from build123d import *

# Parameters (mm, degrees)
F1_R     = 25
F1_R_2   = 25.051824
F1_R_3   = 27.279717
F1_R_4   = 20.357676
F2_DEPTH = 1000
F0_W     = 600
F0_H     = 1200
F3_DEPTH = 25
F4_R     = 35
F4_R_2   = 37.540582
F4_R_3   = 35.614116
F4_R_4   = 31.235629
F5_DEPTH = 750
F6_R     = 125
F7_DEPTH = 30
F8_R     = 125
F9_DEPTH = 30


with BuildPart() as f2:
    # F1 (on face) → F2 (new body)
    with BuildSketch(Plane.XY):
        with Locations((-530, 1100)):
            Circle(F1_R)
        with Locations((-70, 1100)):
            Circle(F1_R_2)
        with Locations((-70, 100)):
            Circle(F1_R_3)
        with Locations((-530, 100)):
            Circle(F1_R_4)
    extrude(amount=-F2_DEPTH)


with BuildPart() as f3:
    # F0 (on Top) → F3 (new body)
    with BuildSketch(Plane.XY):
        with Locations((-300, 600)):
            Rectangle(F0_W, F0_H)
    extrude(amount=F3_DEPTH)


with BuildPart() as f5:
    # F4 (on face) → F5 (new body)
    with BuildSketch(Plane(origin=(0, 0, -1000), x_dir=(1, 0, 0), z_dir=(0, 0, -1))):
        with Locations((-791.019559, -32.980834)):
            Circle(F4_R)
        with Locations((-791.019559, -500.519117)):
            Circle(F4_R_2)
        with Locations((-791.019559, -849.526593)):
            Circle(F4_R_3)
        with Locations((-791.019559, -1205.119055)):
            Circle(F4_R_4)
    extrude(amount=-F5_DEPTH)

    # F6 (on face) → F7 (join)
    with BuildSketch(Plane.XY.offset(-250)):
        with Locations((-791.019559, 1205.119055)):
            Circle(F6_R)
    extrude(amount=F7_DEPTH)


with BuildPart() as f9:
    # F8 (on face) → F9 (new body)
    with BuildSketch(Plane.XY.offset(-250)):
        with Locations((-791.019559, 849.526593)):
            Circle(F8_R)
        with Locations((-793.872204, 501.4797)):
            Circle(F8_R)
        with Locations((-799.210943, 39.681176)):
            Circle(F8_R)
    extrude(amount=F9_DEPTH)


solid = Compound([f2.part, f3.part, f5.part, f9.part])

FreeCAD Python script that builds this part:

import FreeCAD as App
import Part
import Sketcher

V = App.Vector
Q = App.Units.Quantity


def add_polygon(sketch, points):
    """Adds a closed chain of lines whose ends are joined by coincident constraints."""
    first, n = sketch.GeometryCount, len(points)
    for a, b in zip(points, points[1:] + points[:1]):
        sketch.addGeometry(Part.LineSegment(App.Vector(*a, 0), App.Vector(*b, 0)), False)
    for i in range(n):
        sketch.addConstraint(Sketcher.Constraint("Coincident", first + i, 2, first + (i + 1) % n, 1))

doc = App.newDocument("Part")
params = doc.addObject("Spreadsheet::Sheet", "Params")
for row, (alias, value) in enumerate([
    ("sketch1_diameter", "50 mm"),
    ("pad1_length", "1000 mm"),
    ("sketch2_width", "600 mm"),
    ("sketch2_height", "1200 mm"),
    ("pad2_length", "25 mm"),
    ("sketch3_diameter", "70 mm"),
    ("pad3_length", "750 mm"),
    ("sketch4_diameter", "250 mm"),
    ("pad4_length", "30 mm"),
    ("sketch5_diameter", "250 mm"),
    ("pad5_length", "30 mm"),
], start=1):
    params.set(f"A{row}", alias)
    params.set(f"B{row}", "=" + value)
    params.setAlias(f"B{row}", alias)

body = doc.addObject("PartDesign::Body", "Body")
body.AllowCompound = True

sketch1 = doc.addObject("Sketcher::SketchObject", "Sketch")
body.addObject(sketch1)
sketch1.AttachmentSupport = (doc.XY_Plane, [""])
sketch1.MapMode = "FlatFace"
sketch1.addGeometry(Part.Circle(V(-530, 1100, 0), V(0, 0, 1), 25), False)
sketch1.addGeometry(Part.Circle(V(-70, 1100, 0), V(0, 0, 1), 25.051824), False)
sketch1.addGeometry(Part.Circle(V(-70, 100, 0), V(0, 0, 1), 27.279717), False)
sketch1.addGeometry(Part.Circle(V(-530, 100, 0), V(0, 0, 1), 20.357676), False)
sketch1.addConstraint(Sketcher.Constraint("Horizontal", 0, 3, 1, 3))
sketch1.addConstraint(Sketcher.Constraint("Horizontal", 2, 3, 3, 3))
sketch1.addConstraint(Sketcher.Constraint("Vertical", 1, 3, 2, 3))
sketch1.addConstraint(Sketcher.Constraint("Vertical", 0, 3, 3, 3))
sketch1.addConstraint(Sketcher.Constraint("Diameter", 0, Q("50 mm")))
sketch1.addConstraint(Sketcher.Constraint("DistanceX", 0, 3, -1, 1, Q("530 mm")))
sketch1.addConstraint(Sketcher.Constraint("DistanceY", -1, 1, 0, 3, Q("1100 mm")))
sketch1.addConstraint(Sketcher.Constraint("DistanceX", 1, 3, -1, 1, Q("70 mm")))
sketch1.addConstraint(Sketcher.Constraint("DistanceY", -1, 1, 2, 3, Q("100 mm")))
sketch1.addConstraint(Sketcher.Constraint("Diameter", 1, Q("50.103648 mm")))
sketch1.addConstraint(Sketcher.Constraint("Diameter", 2, Q("54.559434 mm")))
sketch1.addConstraint(Sketcher.Constraint("Diameter", 3, Q("40.715352 mm")))
sketch1.setExpression("Constraints[4]", "Params.sketch1_diameter")
pad1 = doc.addObject("PartDesign::Pad", "Pad")
body.addObject(pad1)
pad1.Profile = sketch1
pad1.setExpression("Length", "Params.pad1_length")
pad1.Reversed = True
body2 = doc.addObject("PartDesign::Body", "Body001")

sketch2 = doc.addObject("Sketcher::SketchObject", "Sketch001")
body2.addObject(sketch2)
sketch2.AttachmentSupport = (doc.getObject("XY_Plane001"), [""])
sketch2.MapMode = "FlatFace"
add_polygon(sketch2, [(-600, 1200), (-600, 0), (0, 0), (0, 1200)])
sketch2.addConstraint(Sketcher.Constraint("Vertical", 0))
sketch2.addConstraint(Sketcher.Constraint("Horizontal", 1))
sketch2.addConstraint(Sketcher.Constraint("Vertical", 2))
sketch2.addConstraint(Sketcher.Constraint("Horizontal", 3))
sketch2.addConstraint(Sketcher.Constraint("Coincident", 1, 2, -1, 1))
sketch2.addConstraint(Sketcher.Constraint("DistanceX", 1, 1, 1, 2, Q("600 mm")))
sketch2.addConstraint(Sketcher.Constraint("DistanceY", 0, 2, 0, 1, Q("1200 mm")))
sketch2.setExpression("Constraints[9]", "Params.sketch2_width")
sketch2.setExpression("Constraints[10]", "Params.sketch2_height")
pad2 = doc.addObject("PartDesign::Pad", "Pad001")
body2.addObject(pad2)
pad2.Profile = sketch2
pad2.setExpression("Length", "Params.pad2_length")
body3 = doc.addObject("PartDesign::Body", "Body002")
body3.AllowCompound = True

sketch3 = doc.addObject("Sketcher::SketchObject", "Sketch002")
body3.addObject(sketch3)
sketch3.AttachmentSupport = (doc.getObject("XY_Plane002"), [""])
sketch3.MapMode = "FlatFace"
sketch3.AttachmentOffset = App.Placement(V(0, 0, -1000), App.Rotation())
sketch3.addGeometry(Part.Circle(V(-791.019559, 32.980834, 0), V(0, 0, 1), 35), False)
sketch3.addGeometry(Part.Circle(V(-791.019559, 500.519117, 0), V(0, 0, 1), 37.540582), False)
sketch3.addGeometry(Part.Circle(V(-791.019559, 849.526593, 0), V(0, 0, 1), 35.614116), False)
sketch3.addGeometry(Part.Circle(V(-791.019559, 1205.119055, 0), V(0, 0, 1), 31.235629), False)
sketch3.addConstraint(Sketcher.Constraint("Vertical", 0, 3, 1, 3))
sketch3.addConstraint(Sketcher.Constraint("Vertical", 1, 3, 2, 3))
sketch3.addConstraint(Sketcher.Constraint("Vertical", 2, 3, 3, 3))
sketch3.addConstraint(Sketcher.Constraint("Diameter", 0, Q("70 mm")))
sketch3.addConstraint(Sketcher.Constraint("Diameter", 1, Q("75.081164 mm")))
sketch3.addConstraint(Sketcher.Constraint("Diameter", 2, Q("71.228232 mm")))
sketch3.addConstraint(Sketcher.Constraint("Diameter", 3, Q("62.471258 mm")))
sketch3.addConstraint(Sketcher.Constraint("DistanceX", 0, 3, -1, 1, Q("791.019559 mm")))
sketch3.addConstraint(Sketcher.Constraint("DistanceY", 0, 3, 2, 3, Q("816.545759 mm")))
sketch3.addConstraint(Sketcher.Constraint("DistanceY", 2, 3, 3, 3, Q("355.592462 mm")))
sketch3.addConstraint(Sketcher.Constraint("DistanceY", -1, 1, 0, 3, Q("32.980834 mm")))
sketch3.addConstraint(Sketcher.Constraint("DistanceY", -1, 1, 1, 3, Q("500.519117 mm")))
sketch3.setExpression("Constraints[3]", "Params.sketch3_diameter")
pad3 = doc.addObject("PartDesign::Pad", "Pad002")
body3.addObject(pad3)
pad3.Profile = sketch3
pad3.setExpression("Length", "Params.pad3_length")

sketch4 = doc.addObject("Sketcher::SketchObject", "Sketch003")
body3.addObject(sketch4)
sketch4.AttachmentSupport = (doc.getObject("XY_Plane002"), [""])
sketch4.MapMode = "FlatFace"
sketch4.AttachmentOffset = App.Placement(V(0, 0, -250), App.Rotation())
sketch4.addGeometry(Part.Circle(V(-791.019559, 1205.119055, 0), V(0, 0, 1), 125), False)
sketch4.addConstraint(Sketcher.Constraint("Diameter", 0, Q("250 mm")))
sketch4.addConstraint(Sketcher.Constraint("DistanceX", 0, 3, -1, 1, Q("791.019559 mm")))
sketch4.addConstraint(Sketcher.Constraint("DistanceY", -1, 1, 0, 3, Q("1205.119055 mm")))
sketch4.setExpression("Constraints[0]", "Params.sketch4_diameter")
pad4 = doc.addObject("PartDesign::Pad", "Pad003")
body3.addObject(pad4)
pad4.Profile = sketch4
pad4.setExpression("Length", "Params.pad4_length")
body4 = doc.addObject("PartDesign::Body", "Body003")
body4.AllowCompound = True

sketch5 = doc.addObject("Sketcher::SketchObject", "Sketch004")
body4.addObject(sketch5)
sketch5.AttachmentSupport = (doc.getObject("XY_Plane003"), [""])
sketch5.MapMode = "FlatFace"
sketch5.AttachmentOffset = App.Placement(V(0, 0, -250), App.Rotation())
sketch5.addGeometry(Part.Circle(V(-791.019559, 849.526593, 0), V(0, 0, 1), 125), False)
sketch5.addGeometry(Part.Circle(V(-793.872204, 501.4797, 0), V(0, 0, 1), 125), False)
sketch5.addGeometry(Part.Circle(V(-799.210943, 39.681176, 0), V(0, 0, 1), 125), False)
sketch5.addConstraint(Sketcher.Constraint("Equal", 0, 1))
sketch5.addConstraint(Sketcher.Constraint("Equal", 1, 2))
sketch5.addConstraint(Sketcher.Constraint("Diameter", 0, Q("250 mm")))
sketch5.addConstraint(Sketcher.Constraint("DistanceY", -1, 1, 1, 3, Q("501.4797 mm")))
sketch5.addConstraint(Sketcher.Constraint("DistanceX", 0, 3, -1, 1, Q("791.019559 mm")))
sketch5.addConstraint(Sketcher.Constraint("DistanceX", 2, 3, 1, 3, Q("5.338739 mm")))
sketch5.addConstraint(Sketcher.Constraint("DistanceY", -1, 1, 0, 3, Q("849.526593 mm")))
sketch5.addConstraint(Sketcher.Constraint("DistanceX", 1, 3, -1, 1, Q("793.872204 mm")))
sketch5.addConstraint(Sketcher.Constraint("DistanceY", -1, 1, 2, 3, Q("39.681176 mm")))
sketch5.setExpression("Constraints[2]", "Params.sketch5_diameter")
pad5 = doc.addObject("PartDesign::Pad", "Pad004")
body4.addObject(pad5)
pad5.Profile = sketch5
pad5.setExpression("Length", "Params.pad5_length")

doc.recompute()
